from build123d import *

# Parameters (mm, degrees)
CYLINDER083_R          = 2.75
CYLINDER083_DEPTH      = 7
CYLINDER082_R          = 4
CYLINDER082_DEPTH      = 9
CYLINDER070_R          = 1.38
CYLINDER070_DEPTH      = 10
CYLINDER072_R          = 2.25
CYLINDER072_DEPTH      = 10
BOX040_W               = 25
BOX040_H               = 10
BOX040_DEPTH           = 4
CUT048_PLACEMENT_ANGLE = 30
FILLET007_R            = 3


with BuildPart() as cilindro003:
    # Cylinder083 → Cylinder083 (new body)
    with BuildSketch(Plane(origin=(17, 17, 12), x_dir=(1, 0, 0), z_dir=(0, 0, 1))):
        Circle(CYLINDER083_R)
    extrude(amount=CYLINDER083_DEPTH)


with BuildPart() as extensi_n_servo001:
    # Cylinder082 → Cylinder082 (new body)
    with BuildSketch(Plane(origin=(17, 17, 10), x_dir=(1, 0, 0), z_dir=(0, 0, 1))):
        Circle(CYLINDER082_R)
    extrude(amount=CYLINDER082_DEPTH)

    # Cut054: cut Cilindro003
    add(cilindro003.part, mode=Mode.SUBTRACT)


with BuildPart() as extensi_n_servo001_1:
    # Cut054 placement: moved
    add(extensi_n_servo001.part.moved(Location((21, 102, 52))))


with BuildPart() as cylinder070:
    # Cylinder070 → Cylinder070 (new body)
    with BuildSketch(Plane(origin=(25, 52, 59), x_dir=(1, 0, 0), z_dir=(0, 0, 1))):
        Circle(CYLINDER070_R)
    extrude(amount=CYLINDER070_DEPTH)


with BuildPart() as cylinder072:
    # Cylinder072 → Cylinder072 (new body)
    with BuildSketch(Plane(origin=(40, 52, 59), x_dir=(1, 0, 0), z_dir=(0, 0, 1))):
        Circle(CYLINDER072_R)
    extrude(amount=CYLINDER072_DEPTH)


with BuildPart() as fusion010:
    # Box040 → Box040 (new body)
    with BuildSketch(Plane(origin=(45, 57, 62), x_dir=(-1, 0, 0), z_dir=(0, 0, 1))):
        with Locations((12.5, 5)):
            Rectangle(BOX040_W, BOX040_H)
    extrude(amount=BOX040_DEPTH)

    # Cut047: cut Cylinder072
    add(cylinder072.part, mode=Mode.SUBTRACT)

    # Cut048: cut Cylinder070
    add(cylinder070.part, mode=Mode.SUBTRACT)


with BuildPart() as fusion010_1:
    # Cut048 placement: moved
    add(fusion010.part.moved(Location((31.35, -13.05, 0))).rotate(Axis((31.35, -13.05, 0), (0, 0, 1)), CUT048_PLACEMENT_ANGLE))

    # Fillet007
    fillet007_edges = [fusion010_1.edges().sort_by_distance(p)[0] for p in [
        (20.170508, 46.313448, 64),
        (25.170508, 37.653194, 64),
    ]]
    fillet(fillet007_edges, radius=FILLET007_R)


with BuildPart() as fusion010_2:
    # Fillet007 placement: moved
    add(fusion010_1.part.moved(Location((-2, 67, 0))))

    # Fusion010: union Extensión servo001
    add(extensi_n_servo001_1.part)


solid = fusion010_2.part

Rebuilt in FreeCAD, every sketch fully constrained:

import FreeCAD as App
import Part
import Sketcher
Q = App.Units.Quantity


def edges_at(feature, points):
    """Names of the edges that pass closest to the given points."""
    edges = feature.Shape.Edges
    near = lambda p: min(range(len(edges)), key=lambda i: edges[i].distToShape(Part.Vertex(*p))[0])
    return sorted({f"Edge{near(p) + 1}" for p in points})


def add_polygon(sketch, points):
    """Adds a closed chain of lines whose ends are joined by coincident constraints."""
    first, n = sketch.GeometryCount, len(points)
    for a, b in zip(points, points[1:] + points[:1]):
        sketch.addGeometry(Part.LineSegment(App.Vector(*a, 0), App.Vector(*b, 0)), False)
    for i in range(n):
        sketch.addConstraint(Sketcher.Constraint("Coincident", first + i, 2, first + (i + 1) % n, 1))

doc = App.newDocument("Part")
params = doc.addObject("Spreadsheet::Sheet", "Params")
for row, (alias, value) in enumerate([
    ("sketch1_diameter", "5.5 mm"),
    ("pad1_length", "7 mm"),
    ("sketch2_diameter", "8 mm"),
    ("pad2_length", "9 mm"),
    ("sketch3_diameter", "2.76 mm"),
    ("pad3_length", "10 mm"),
    ("sketch4_diameter", "4.5 mm"),
    ("pad4_length", "10 mm"),
    ("sketch5_width", "25 mm"),
    ("sketch5_height", "10 mm"),
    ("pad5_length", "4 mm"),
    ("fillet_radius", "3 mm"),
], start=1):
    params.set(f"A{row}", alias)
    params.set(f"B{row}", "=" + value)
    params.setAlias(f"B{row}", alias)

body = doc.addObject("PartDesign::Body", "Body")

sketch1 = body.newObject("Sketcher::SketchObject", "Sketch")
sketch1.AttachmentSupport = (doc.getObject("XY_Plane"), [""])
sketch1.MapMode = "FlatFace"
sketch1.AttachmentOffset = App.Placement(App.Vector(0, 0, 12), App.Rotation())
sketch1.addGeometry(Part.Circle(App.Vector(17, 17, 0), App.Vector(0, 0, 1), 2.8), False)
sketch1.addConstraint([
    Sketcher.Constraint("Diameter", 0, Q("5.5 mm")),
    Sketcher.Constraint("DistanceX", -1, 1, 0, 3, Q("17 mm")),
    Sketcher.Constraint("DistanceY", -1, 1, 0, 3, Q("17 mm")),
])
sketch1.setExpression("Constraints[0]", "Params.sketch1_diameter")
pad1 = body.newObject("PartDesign::Pad", "Pad")
pad1.Profile = sketch1
pad1.setExpression("Length", "Params.pad1_length")
body2 = doc.addObject("PartDesign::Body", "Body001")

sketch2 = body2.newObject("Sketcher::SketchObject", "Sketch001")
sketch2.AttachmentSupport = (doc.getObject("XY_Plane001"), [""])
sketch2.MapMode = "FlatFace"
sketch2.AttachmentOffset = App.Placement(App.Vector(0, 0, 10), App.Rotation())
sketch2.addGeometry(Part.Circle(App.Vector(17, 17, 0), App.Vector(0, 0, 1), 4), False)
sketch2.addConstraint([
    Sketcher.Constraint("Diameter", 0, Q("8 mm")),
    Sketcher.Constraint("DistanceX", -1, 1, 0, 3, Q("17 mm")),
    Sketcher.Constraint("DistanceY", -1, 1, 0, 3, Q("17 mm")),
])
sketch2.setExpression("Constraints[0]", "Params.sketch2_diameter")
pad2 = body2.newObject("PartDesign::Pad", "Pad001")
pad2.Profile = sketch2
pad2.setExpression("Length", "Params.pad2_length")
doc.recompute()

boolean = body2.newObject("PartDesign::Boolean", "Boolean")
boolean.Type = "Cut"
boolean.addObjects([body])
body3 = doc.addObject("PartDesign::Body", "Body002")
doc.recompute()

body2.Placement = App.Placement(App.Vector(21, 102, 52), App.Rotation(App.Vector(0, 0, 1), 0))
boolean2 = body3.newObject("PartDesign::Boolean", "Boolean001")
boolean2.Type = "Fuse"
boolean2.addObjects([body2])
body4 = doc.addObject("PartDesign::Body", "Body003")

sketch3 = body4.newObject("Sketcher::SketchObject", "Sketch002")
sketch3.AttachmentSupport = (doc.getObject("XY_Plane003"), [""])
sketch3.MapMode = "FlatFace"
sketch3.AttachmentOffset = App.Placement(App.Vector(0, 0, 59), App.Rotation())
sketch3.addGeometry(Part.Circle(App.Vector(25, 52, 0), App.Vector(0, 0, 1), 1.4), False)
sketch3.addConstraint([
    Sketcher.Constraint("Diameter", 0, Q("2.76 mm")),
    Sketcher.Constraint("DistanceX", -1, 1, 0, 3, Q("25 mm")),
    Sketcher.Constraint("DistanceY", -1, 1, 0, 3, Q("52 mm")),
])
sketch3.setExpression("Constraints[0]", "Params.sketch3_diameter")
pad3 = body4.newObject("PartDesign::Pad", "Pad002")
pad3.Profile = sketch3
pad3.setExpression("Length", "Params.pad3_length")
body5 = doc.addObject("PartDesign::Body", "Body004")

sketch4 = body5.newObject("Sketcher::SketchObject", "Sketch003")
sketch4.AttachmentSupport = (doc.getObject("XY_Plane004"), [""])
sketch4.MapMode = "FlatFace"
sketch4.AttachmentOffset = App.Placement(App.Vector(0, 0, 59), App.Rotation())
sketch4.addGeometry(Part.Circle(App.Vector(40, 52, 0), App.Vector(0, 0, 1), 2.2), False)
sketch4.addConstraint([
    Sketcher.Constraint("Diameter", 0, Q("4.5 mm")),
    Sketcher.Constraint("DistanceX", -1, 1, 0, 3, Q("40 mm")),
    Sketcher.Constraint("DistanceY", -1, 1, 0, 3, Q("52 mm")),
])
sketch4.setExpression("Constraints[0]", "Params.sketch4_diameter")
pad4 = body5.newObject("PartDesign::Pad", "Pad003")
pad4.Profile = sketch4
pad4.setExpression("Length", "Params.pad4_length")
body6 = doc.addObject("PartDesign::Body", "Body005")

sketch5 = body6.newObject("Sketcher::SketchObject", "Sketch004")
sketch5.AttachmentSupport = (doc.getObject("XY_Plane005"), [""])
sketch5.MapMode = "FlatFace"
sketch5.AttachmentOffset = App.Placement(App.Vector(0, 0, 62), App.Rotation())
add_polygon(sketch5, [(45, 47), (45, 57), (20, 57), (20, 47)])
sketch5.addConstraint([
    Sketcher.Constraint("Vertical", 0),
    Sketcher.Constraint("Horizontal", 1),
    Sketcher.Constraint("Vertical", 2),
    Sketcher.Constraint("Horizontal", 3),
    Sketcher.Constraint("DistanceX", 1, 2, 1, 1, Q("25 mm")),
    Sketcher.Constraint("DistanceY", 0, 1, 0, 2, Q("10 mm")),
    Sketcher.Constraint("DistanceX", -1, 1, 0, 2, Q("45 mm")),
    Sketcher.Constraint("DistanceY", -1, 1, 0, 2, Q("57 mm")),
])
sketch5.setExpression("Constraints[8]", "Params.sketch5_width")
sketch5.setExpression("Constraints[9]", "Params.sketch5_height")
pad5 = body6.newObject("PartDesign::Pad", "Pad004")
pad5.Profile = sketch5
pad5.setExpression("Length", "Params.pad5_length")
doc.recompute()

boolean3 = body6.newObject("PartDesign::Boolean", "Boolean002")
boolean3.Type = "Cut"
boolean3.addObjects([body5])
doc.recompute()

boolean4 = body6.newObject("PartDesign::Boolean", "Boolean003")
boolean4.Type = "Cut"
boolean4.addObjects([body4])
body7 = doc.addObject("PartDesign::Body", "Body006")
doc.recompute()

body6.Placement = App.Placement(App.Vector(31.35, -13.05, 0), App.Rotation(App.Vector(0, 0, 1), 30))
boolean5 = body7.newObject("PartDesign::Boolean", "Boolean004")
boolean5.Type = "Fuse"
boolean5.addObjects([body6])
doc.recompute()

fillet = body7.newObject("PartDesign::Fillet", "Fillet")
fillet.Base = (boolean5, edges_at(boolean5, [(20.171, 46.313, 64), (25.171, 37.653, 64)]))
fillet.setExpression("Radius", "Params.fillet_radius")
body8 = doc.addObject("PartDesign::Body", "Body007")
doc.recompute()

body7.Placement = App.Placement(App.Vector(-2, 67, 0), App.Rotation(App.Vector(0, 0, 1), 0))
boolean6 = body8.newObject("PartDesign::Boolean", "Boolean005")
boolean6.Type = "Fuse"
boolean6.addObjects([body7])
doc.recompute()

boolean7 = body8.newObject("PartDesign::Boolean", "Boolean006")
boolean7.Type = "Fuse"
boolean7.addObjects([body3])

doc.recompute()
